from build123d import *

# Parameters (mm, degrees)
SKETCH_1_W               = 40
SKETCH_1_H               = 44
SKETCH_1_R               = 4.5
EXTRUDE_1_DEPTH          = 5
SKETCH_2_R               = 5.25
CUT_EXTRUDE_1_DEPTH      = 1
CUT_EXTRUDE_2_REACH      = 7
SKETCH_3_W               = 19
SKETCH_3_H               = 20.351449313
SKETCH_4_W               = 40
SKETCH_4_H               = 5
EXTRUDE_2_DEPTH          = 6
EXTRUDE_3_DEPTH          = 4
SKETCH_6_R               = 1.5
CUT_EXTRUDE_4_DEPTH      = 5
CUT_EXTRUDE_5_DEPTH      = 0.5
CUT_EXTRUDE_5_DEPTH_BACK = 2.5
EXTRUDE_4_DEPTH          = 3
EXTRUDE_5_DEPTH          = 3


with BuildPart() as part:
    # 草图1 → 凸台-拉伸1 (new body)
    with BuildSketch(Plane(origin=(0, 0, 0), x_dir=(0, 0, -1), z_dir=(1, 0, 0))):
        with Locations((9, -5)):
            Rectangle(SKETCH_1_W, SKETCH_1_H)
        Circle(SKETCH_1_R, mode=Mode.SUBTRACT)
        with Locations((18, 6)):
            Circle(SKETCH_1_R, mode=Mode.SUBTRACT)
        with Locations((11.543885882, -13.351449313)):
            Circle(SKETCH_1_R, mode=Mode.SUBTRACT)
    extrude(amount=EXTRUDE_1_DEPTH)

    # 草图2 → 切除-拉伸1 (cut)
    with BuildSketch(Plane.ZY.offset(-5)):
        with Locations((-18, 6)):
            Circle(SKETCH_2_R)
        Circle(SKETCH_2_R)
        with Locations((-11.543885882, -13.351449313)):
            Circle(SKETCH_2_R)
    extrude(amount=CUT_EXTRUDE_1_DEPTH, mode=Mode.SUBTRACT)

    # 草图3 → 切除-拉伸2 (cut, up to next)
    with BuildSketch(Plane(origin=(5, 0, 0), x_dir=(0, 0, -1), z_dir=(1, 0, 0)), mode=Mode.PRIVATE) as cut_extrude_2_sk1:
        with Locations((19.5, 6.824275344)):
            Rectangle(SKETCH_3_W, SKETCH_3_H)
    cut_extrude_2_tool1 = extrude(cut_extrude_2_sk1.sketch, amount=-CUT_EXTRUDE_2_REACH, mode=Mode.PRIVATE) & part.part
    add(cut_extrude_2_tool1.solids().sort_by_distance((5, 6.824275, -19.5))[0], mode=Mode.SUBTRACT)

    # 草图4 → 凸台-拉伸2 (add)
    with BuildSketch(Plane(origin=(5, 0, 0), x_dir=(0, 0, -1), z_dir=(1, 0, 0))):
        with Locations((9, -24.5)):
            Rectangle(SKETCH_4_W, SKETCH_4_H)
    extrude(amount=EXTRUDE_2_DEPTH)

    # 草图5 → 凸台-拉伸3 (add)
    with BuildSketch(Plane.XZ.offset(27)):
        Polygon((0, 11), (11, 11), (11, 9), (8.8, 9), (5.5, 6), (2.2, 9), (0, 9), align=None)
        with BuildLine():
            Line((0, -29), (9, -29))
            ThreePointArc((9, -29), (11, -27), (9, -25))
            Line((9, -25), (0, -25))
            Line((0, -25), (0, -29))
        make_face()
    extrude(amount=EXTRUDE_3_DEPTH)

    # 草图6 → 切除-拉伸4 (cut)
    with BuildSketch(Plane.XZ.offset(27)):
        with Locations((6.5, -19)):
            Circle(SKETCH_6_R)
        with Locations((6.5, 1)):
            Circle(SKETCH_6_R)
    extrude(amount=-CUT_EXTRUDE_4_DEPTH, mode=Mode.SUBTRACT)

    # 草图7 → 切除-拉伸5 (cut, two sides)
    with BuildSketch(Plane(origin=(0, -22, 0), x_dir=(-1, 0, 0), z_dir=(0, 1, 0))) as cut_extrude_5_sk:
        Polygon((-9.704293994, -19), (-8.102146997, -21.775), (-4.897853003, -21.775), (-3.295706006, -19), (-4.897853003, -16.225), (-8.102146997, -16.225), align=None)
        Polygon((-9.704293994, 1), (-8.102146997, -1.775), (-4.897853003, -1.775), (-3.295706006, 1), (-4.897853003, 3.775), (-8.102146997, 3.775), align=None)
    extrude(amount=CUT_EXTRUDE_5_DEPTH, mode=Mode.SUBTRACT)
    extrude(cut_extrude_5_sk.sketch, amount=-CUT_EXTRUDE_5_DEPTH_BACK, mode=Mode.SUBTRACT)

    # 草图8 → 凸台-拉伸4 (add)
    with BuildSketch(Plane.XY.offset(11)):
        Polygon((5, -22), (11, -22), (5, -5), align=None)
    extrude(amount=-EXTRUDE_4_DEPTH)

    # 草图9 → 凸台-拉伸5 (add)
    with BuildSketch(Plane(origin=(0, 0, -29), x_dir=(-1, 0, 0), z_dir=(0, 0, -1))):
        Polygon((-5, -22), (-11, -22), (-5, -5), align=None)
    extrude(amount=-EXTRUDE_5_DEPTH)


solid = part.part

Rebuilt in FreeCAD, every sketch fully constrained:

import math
import FreeCAD as App
import Part
import Sketcher
Q = App.Units.Quantity

doc = App.newDocument("Part")
body = doc.addObject("PartDesign::Body", "Body")

# Sketch on YZ plane
sketch1 = doc.addObject("Sketcher::SketchObject", "Sketch")
body.addObject(sketch1)
sketch1.AttachmentSupport = (doc.YZ_Plane, [""])
sketch1.MapMode = "FlatFace"
sketch1.addGeometry([
    Part.LineSegment(App.Vector(17, 11, 0), App.Vector(-27, 11, 0)),  # 0
    Part.LineSegment(App.Vector(-27, 11, 0), App.Vector(-27, -29, 0)),  # 1
    Part.LineSegment(App.Vector(-27, -29, 0), App.Vector(17, -29, 0)),  # 2
    Part.LineSegment(App.Vector(17, -29, 0), App.Vector(17, 11, 0)),  # 3
    Part.Circle(App.Vector(-13.4, -11.5, 0), App.Vector(0, 0, 1), 4.5),  # 4
    Part.Circle(App.Vector(0, 0, 0), App.Vector(0, 0, 1), 4.5),  # 5
    Part.Circle(App.Vector(6, -18, 0), App.Vector(0, 0, 1), 4.5),  # 6
], False)
sketch1.addConstraint([
    Sketcher.Constraint("Coincident", 0, 2, 1, 1),
    Sketcher.Constraint("Coincident", 1, 2, 2, 1),
    Sketcher.Constraint("Coincident", 2, 2, 3, 1),
    Sketcher.Constraint("Coincident", 3, 2, 0, 1),
    Sketcher.Constraint("Horizontal", 0),
    Sketcher.Constraint("Vertical", 1),
    Sketcher.Constraint("Horizontal", 2),
    Sketcher.Constraint("Vertical", 3),
    Sketcher.Constraint("Coincident", 5, 3, -1, 1),
    Sketcher.Constraint("Equal", 4, 5),
    Sketcher.Constraint("Equal", 5, 6),
    Sketcher.Constraint("Diameter", 4, Q("9 mm")),
    Sketcher.Constraint("DistanceX", 0, 2, 0, 1, Q("44 mm")),
    Sketcher.Constraint("DistanceY", 1, 2, 1, 1, Q("40 mm")),
    Sketcher.Constraint("DistanceX", -1, 1, 6, 3, Q("6 mm")),
    Sketcher.Constraint("DistanceY", 6, 3, -1, 1, Q("18 mm")),
    Sketcher.Constraint("DistanceX", 0, 2, -1, 1, Q("27 mm")),
    Sketcher.Constraint("DistanceY", -1, 1, 0, 2, Q("11 mm")),
    Sketcher.Constraint("DistanceX", 4, 3, -1, 1, Q("13.351449 mm")),
    Sketcher.Constraint("DistanceY", 4, 3, -1, 1, Q("11.543886 mm")),
])
pad1 = doc.addObject("PartDesign::Pad", "Pad")
body.addObject(pad1)
pad1.Profile = sketch1
pad1.Length = 5

# Sketch on YZ plane
sketch2 = doc.addObject("Sketcher::SketchObject", "Sketch001")
body.addObject(sketch2)
sketch2.AttachmentSupport = (doc.YZ_Plane, [""])
sketch2.MapMode = "FlatFace"
sketch2.AttachmentOffset = App.Placement(App.Vector(0, 0, 5), App.Rotation())
sketch2.addGeometry([
    Part.Circle(App.Vector(6, -18, 0), App.Vector(0, 0, 1), 5),
    Part.Circle(App.Vector(0, 0, 0), App.Vector(0, 0, 1), 5),
    Part.Circle(App.Vector(-13, -12, 0), App.Vector(0, 0, 1), 5),
], False)
sketch2.addConstraint([
    Sketcher.Constraint("Coincident", 1, 3, -1, 1),
    Sketcher.Constraint("Equal", 0, 1),
    Sketcher.Constraint("Equal", 1, 2),
    Sketcher.Constraint("Diameter", 0, Q("10.5 mm")),
    Sketcher.Constraint("DistanceX", -1, 1, 0, 3, Q("6 mm")),
    Sketcher.Constraint("DistanceY", 0, 3, -1, 1, Q("18 mm")),
    Sketcher.Constraint("DistanceX", 2, 3, -1, 1, Q("13.351449 mm")),
    Sketcher.Constraint("DistanceY", 2, 3, -1, 1, Q("11.543886 mm")),
])
pocket1 = doc.addObject("PartDesign::Pocket", "Pocket")
body.addObject(pocket1)
pocket1.Profile = sketch2
pocket1.Length = 1

# Sketch on YZ plane
sketch3 = doc.addObject("Sketcher::SketchObject", "Sketch002")
body.addObject(sketch3)
sketch3.AttachmentSupport = (doc.YZ_Plane, [""])
sketch3.MapMode = "FlatFace"
sketch3.AttachmentOffset = App.Placement(App.Vector(0, 0, 5), App.Rotation())
sketch3.addGeometry([
    Part.LineSegment(App.Vector(17, -10, 0), App.Vector(-3, -10, 0)),
    Part.LineSegment(App.Vector(-3, -10, 0), App.Vector(-3, -29, 0)),
    Part.LineSegment(App.Vector(-3, -29, 0), App.Vector(17, -29, 0)),
    Part.LineSegment(App.Vector(17, -29, 0), App.Vector(17, -10, 0)),
], False)
sketch3.addConstraint([
    Sketcher.Constraint("Coincident", 0, 2, 1, 1),
    Sketcher.Constraint("Coincident", 1, 2, 2, 1),
    Sketcher.Constraint("Coincident", 2, 2, 3, 1),
    Sketcher.Constraint("Coincident", 3, 2, 0, 1),
    Sketcher.Constraint("Horizontal", 0),
    Sketcher.Constraint("Vertical", 1),
    Sketcher.Constraint("Horizontal", 2),
    Sketcher.Constraint("Vertical", 3),
    Sketcher.Constraint("DistanceY", 1, 2, 1, 1, Q("19 mm")),
    Sketcher.Constraint("DistanceY", 0, 2, -1, 1, Q("10 mm")),
    Sketcher.Constraint("DistanceX", -1, 1, 2, 2, Q("17 mm")),
    Sketcher.Constraint("DistanceX", 0, 2, 0, 1, Q("20.351449 mm")),
])
pocket2 = doc.addObject("PartDesign::Pocket", "Pocket001")
body.addObject(pocket2)
pocket2.Profile = sketch3
pocket2.Length = 5

# Sketch on YZ plane
sketch4 = doc.addObject("Sketcher::SketchObject", "Sketch003")
body.addObject(sketch4)
sketch4.AttachmentSupport = (doc.YZ_Plane, [""])
sketch4.MapMode = "FlatFace"
sketch4.AttachmentOffset = App.Placement(App.Vector(0, 0, 5), App.Rotation())
sketch4.addGeometry([
    Part.LineSegment(App.Vector(-22, 11, 0), App.Vector(-27, 11, 0)),
    Part.LineSegment(App.Vector(-27, 11, 0), App.Vector(-27, -29, 0)),
    Part.LineSegment(App.Vector(-27, -29, 0), App.Vector(-22, -29, 0)),
    Part.LineSegment(App.Vector(-22, -29, 0), App.Vector(-22, 11, 0)),
], False)
sketch4.addConstraint([
    Sketcher.Constraint("Coincident", 0, 2, 1, 1),
    Sketcher.Constraint("Coincident", 1, 2, 2, 1),
    Sketcher.Constraint("Coincident", 2, 2, 3, 1),
    Sketcher.Constraint("Coincident", 3, 2, 0, 1),
    Sketcher.Constraint("Horizontal", 0),
    Sketcher.Constraint("Vertical", 1),
    Sketcher.Constraint("Horizontal", 2),
    Sketcher.Constraint("Vertical", 3),
    Sketcher.Constraint("DistanceX", 0, 2, 0, 1, Q("5 mm")),
    Sketcher.Constraint("DistanceY", 1, 2, 1, 1, Q("40 mm")),
    Sketcher.Constraint("DistanceX", 0, 2, -1, 1, Q("27 mm")),
    Sketcher.Constraint("DistanceY", -1, 1, 0, 2, Q("11 mm")),
])
pad2 = doc.addObject("PartDesign::Pad", "Pad001")
body.addObject(pad2)
pad2.Profile = sketch4
pad2.Length = 6

# Sketch on XZ plane
sketch5 = doc.addObject("Sketcher::SketchObject", "Sketch004")
body.addObject(sketch5)
sketch5.AttachmentSupport = (doc.XZ_Plane, [""])
sketch5.MapMode = "FlatFace"
sketch5.AttachmentOffset = App.Placement(App.Vector(0, 0, 27), App.Rotation())
sketch5.addGeometry([
    Part.LineSegment(App.Vector(11, 11, 0), App.Vector(0, 11, 0)),  # 0
    Part.LineSegment(App.Vector(0, 11, 0), App.Vector(0, 9, 0)),  # 1
    Part.LineSegment(App.Vector(0, 9, 0), App.Vector(2.2, 9, 0)),  # 2
    Part.LineSegment(App.Vector(2.2, 9, 0), App.Vector(5.5, 6, 0)),  # 3
    Part.LineSegment(App.Vector(5.5, 6, 0), App.Vector(8.8, 9, 0)),  # 4
    Part.LineSegment(App.Vector(8.8, 9, 0), App.Vector(11, 9, 0)),  # 5
    Part.LineSegment(App.Vector(11, 9, 0), App.Vector(11, 11, 0)),  # 6
    Part.LineSegment(App.Vector(0, -29, 0), App.Vector(9, -29, 0)),  # 7
    Part.ArcOfCircle(Part.Circle(App.Vector(9, -27, 0), App.Vector(0, 0, 1), 2), math.radians(-90), math.radians(90)),  # 8
    Part.LineSegment(App.Vector(9, -25, 0), App.Vector(0, -25, 0)),  # 9
    Part.LineSegment(App.Vector(0, -25, 0), App.Vector(0, -29, 0)),  # 10
], False)
sketch5.addConstraint([
    Sketcher.Constraint("Coincident", 0, 2, 1, 1),
    Sketcher.Constraint("Coincident", 1, 2, 2, 1),
    Sketcher.Constraint("Coincident", 2, 2, 3, 1),
    Sketcher.Constraint("Coincident", 3, 2, 4, 1),
    Sketcher.Constraint("Coincident", 4, 2, 5, 1),
    Sketcher.Constraint("Coincident", 5, 2, 6, 1),
    Sketcher.Constraint("Coincident", 6, 2, 0, 1),
    Sketcher.Constraint("Tangent", 7, 2, 8, 1),
    Sketcher.Constraint("Tangent", 8, 2, 9, 1),
    Sketcher.Constraint("Coincident", 9, 2, 10, 1),
    Sketcher.Constraint("Coincident", 10, 2, 7, 1),
    Sketcher.Constraint("Horizontal", 0),
    Sketcher.Constraint("Vertical", 1),
    Sketcher.Constraint("Horizontal", 2),
    Sketcher.Constraint("Horizontal", 5),
    Sketcher.Constraint("Vertical", 6),
    Sketcher.Constraint("Horizontal", 7),
    Sketcher.Constraint("Horizontal", 9),
    Sketcher.Constraint("Vertical", 10),
    Sketcher.Constraint("PointOnObject", 0, 2, -2),
    Sketcher.Constraint("PointOnObject", 9, 2, -2),
    Sketcher.Constraint("Horizontal", 2, 2, 4, 2),
    Sketcher.Constraint("Equal", 2, 5),
    Sketcher.Constraint("Equal", 3, 4),
    Sketcher.Constraint("Radius", 8, Q("2 mm")),
    Sketcher.Constraint("DistanceX", 0, 2, 0, 1, Q("11 mm")),
    Sketcher.Constraint("DistanceX", 7, 1, 7, 2, Q("9 mm")),
    Sketcher.Constraint("DistanceY", 1, 2, 1, 1, Q("2 mm")),
    Sketcher.Constraint("DistanceX", 2, 1, 2, 2, Q("2.2 mm")),
    Sketcher.Constraint("DistanceY", 8, 3, -1, 1, Q("27 mm")),
    Sketcher.Constraint("DistanceY", -1, 1, 0, 2, Q("11 mm")),
    Sketcher.Constraint("DistanceY", -1, 1, 3, 2, Q("6 mm")),
])
pad3 = doc.addObject("PartDesign::Pad", "Pad002")
body.addObject(pad3)
pad3.Profile = sketch5
pad3.Length = 4

# Sketch on XZ plane
sketch6 = doc.addObject("Sketcher::SketchObject", "Sketch005")
body.addObject(sketch6)
sketch6.AttachmentSupport = (doc.XZ_Plane, [""])
sketch6.MapMode = "FlatFace"
sketch6.AttachmentOffset = App.Placement(App.Vector(0, 0, 27), App.Rotation())
sketch6.addGeometry([
    Part.Circle(App.Vector(6.5, -19, 0), App.Vector(0, 0, 1), 1.5),
    Part.Circle(App.Vector(6.5, 1, 0), App.Vector(0, 0, 1), 1.5),
], False)
sketch6.addConstraint([
    Sketcher.Constraint("Equal", 0, 1),
    Sketcher.Constraint("Vertical", 0, 3, 1, 3),
    Sketcher.Constraint("Diameter", 0, Q("3 mm")),
    Sketcher.Constraint("DistanceY", 0, 3, -1, 1, Q("19 mm")),
    Sketcher.Constraint("DistanceY", -1, 1, 1, 3, Q("1 mm")),
    Sketcher.Constraint("DistanceX", -1, 1, 0, 3, Q("6.5 mm")),
])
pocket3 = doc.addObject("PartDesign::Pocket", "Pocket002")
body.addObject(pocket3)
pocket3.Profile = sketch6
pocket3.Length = 5

# Sketch on XZ plane
sketch7 = doc.addObject("Sketcher::SketchObject", "Sketch006")
body.addObject(sketch7)
sketch7.AttachmentSupport = (doc.XZ_Plane, [""])
sketch7.MapMode = "FlatFace"
sketch7.AttachmentOffset = App.Placement(App.Vector(0, 0, 22), App.Rotation())
sketch7.addGeometry([
    Part.LineSegment(App.Vector(9.7, -19, 0), App.Vector(8.1, -21.8, 0)),  # 0
    Part.LineSegment(App.Vector(8.1, -21.8, 0), App.Vector(4.9, -21.8, 0)),  # 1
    Part.LineSegment(App.Vector(4.9, -21.8, 0), App.Vector(3.3, -19, 0)),  # 2
    Part.LineSegment(App.Vector(3.3, -19, 0), App.Vector(4.9, -16.2, 0)),  # 3
    Part.LineSegment(App.Vector(4.9, -16.2, 0), App.Vector(8.1, -16.2, 0)),  # 4
    Part.LineSegment(App.Vector(8.1, -16.2, 0), App.Vector(9.7, -19, 0)),  # 5
    Part.LineSegment(App.Vector(9.7, 1, 0), App.Vector(8.1, -1.8, 0)),  # 6
    Part.LineSegment(App.Vector(8.1, -1.8, 0), App.Vector(4.9, -1.8, 0)),  # 7
    Part.LineSegment(App.Vector(4.9, -1.8, 0), App.Vector(3.3, 1, 0)),  # 8
    Part.LineSegment(App.Vector(3.3, 1, 0), App.Vector(4.9, 3.8, 0)),  # 9
    Part.LineSegment(App.Vector(4.9, 3.8, 0), App.Vector(8.1, 3.8, 0)),  # 10
    Part.LineSegment(App.Vector(8.1, 3.8, 0), App.Vector(9.7, 1, 0)),  # 11
], False)
sketch7.addConstraint([
    Sketcher.Constraint("Coincident", 0, 2, 1, 1),
    Sketcher.Constraint("Coincident", 1, 2, 2, 1),
    Sketcher.Constraint("Coincident", 2, 2, 3, 1),
    Sketcher.Constraint("Coincident", 3, 2, 4, 1),
    Sketcher.Constraint("Coincident", 4, 2, 5, 1),
    Sketcher.Constraint("Coincident", 5, 2, 0, 1),
    Sketcher.Constraint("Coincident", 6, 2, 7, 1),
    Sketcher.Constraint("Coincident", 7, 2, 8, 1),
    Sketcher.Constraint("Coincident", 8, 2, 9, 1),
    Sketcher.Constraint("Coincident", 9, 2, 10, 1),
    Sketcher.Constraint("Coincident", 10, 2, 11, 1),
    Sketcher.Constraint("Coincident", 11, 2, 6, 1),
    Sketcher.Constraint("Horizontal", 1),
    Sketcher.Constraint("Horizontal", 4),
    Sketcher.Constraint("Horizontal", 7),
    Sketcher.Constraint("Horizontal", 10),
    Sketcher.Constraint("Parallel", 0, 3),
    Sketcher.Constraint("Parallel", 2, 5),
    Sketcher.Constraint("Parallel", 3, 6),
    Sketcher.Constraint("Parallel", 5, 8),
    Sketcher.Constraint("Parallel", 6, 9),
    Sketcher.Constraint("Parallel", 8, 11),
    Sketcher.Constraint("Horizontal", 2, 2, 5, 2),
    Sketcher.Constraint("Horizontal", 8, 2, 11, 2),
    Sketcher.Constraint("Vertical", 1, 2, 3, 2),
    Sketcher.Constraint("Vertical", 0, 2, 4, 2),
    Sketcher.Constraint("Vertical", 4, 2, 6, 2),
    Sketcher.Constraint("Vertical", 3, 2, 7, 2),
    Sketcher.Constraint("Vertical", 2, 2, 8, 2),
    Sketcher.Constraint("Vertical", 7, 2, 9, 2),
    Sketcher.Constraint("Angle", 0, Q("-120 deg")),
    Sketcher.Constraint("DistanceY", 2, 2, -1, 1, Q("19 mm")),
    Sketcher.Constraint("DistanceY", -1, 1, 8, 2, Q("1 mm")),
    Sketcher.Constraint("DistanceY", 1, 2, 3, 2, Q("5.55 mm")),
    Sketcher.Constraint("DistanceX", 1, 2, 1, 1, Q("3.204294 mm")),
    Sketcher.Constraint("DistanceX", -1, 1, 0, 2, Q("8.102147 mm")),
])
pocket4 = doc.addObject("PartDesign::Pocket", "Pocket003")
body.addObject(pocket4)
pocket4.Profile = sketch7
pocket4.Type = "TwoLengths"
pocket4.Length = 0.5
pocket4.Length2 = 2.5

# Sketch on XY plane
sketch8 = doc.addObject("Sketcher::SketchObject", "Sketch007")
body.addObject(sketch8)
sketch8.AttachmentSupport = (doc.XY_Plane, [""])
sketch8.MapMode = "FlatFace"
sketch8.AttachmentOffset = App.Placement(App.Vector(0, 0, 11), App.Rotation())
sketch8.addGeometry([
    Part.LineSegment(App.Vector(5, -22, 0), App.Vector(11, -22, 0)),
    Part.LineSegment(App.Vector(11, -22, 0), App.Vector(5, -5, 0)),
    Part.LineSegment(App.Vector(5, -5, 0), App.Vector(5, -22, 0)),
], False)
sketch8.addConstraint([
    Sketcher.Constraint("Coincident", 0, 2, 1, 1),
    Sketcher.Constraint("Coincident", 1, 2, 2, 1),
    Sketcher.Constraint("Coincident", 2, 2, 0, 1),
    Sketcher.Constraint("Horizontal", 0),
    Sketcher.Constraint("Vertical", 2),
    Sketcher.Constraint("DistanceX", 0, 1, 0, 2, Q("6 mm")),
    Sketcher.Constraint("DistanceY", 2, 2, 2, 1, Q("17 mm")),
    Sketcher.Constraint("DistanceX", -1, 1, 0, 2, Q("11 mm")),
    Sketcher.Constraint("DistanceY", 0, 2, -1, 1, Q("22 mm")),
])
pad4 = doc.addObject("PartDesign::Pad", "Pad003")
body.addObject(pad4)
pad4.Profile = sketch8
pad4.Length = 3
pad4.Reversed = True

# Sketch on XY plane
sketch9 = doc.addObject("Sketcher::SketchObject", "Sketch008")
body.addObject(sketch9)
sketch9.AttachmentSupport = (doc.XY_Plane, [""])
sketch9.MapMode = "FlatFace"
sketch9.AttachmentOffset = App.Placement(App.Vector(0, 0, -29), App.Rotation())
sketch9.addGeometry([
    Part.LineSegment(App.Vector(11, -22, 0), App.Vector(5, -22, 0)),
    Part.LineSegment(App.Vector(5, -22, 0), App.Vector(5, -5, 0)),
    Part.LineSegment(App.Vector(5, -5, 0), App.Vector(11, -22, 0)),
], False)
sketch9.addConstraint([
    Sketcher.Constraint("Coincident", 0, 2, 1, 1),
    Sketcher.Constraint("Coincident", 1, 2, 2, 1),
    Sketcher.Constraint("Coincident", 2, 2, 0, 1),
    Sketcher.Constraint("Horizontal", 0),
    Sketcher.Constraint("Vertical", 1),
    Sketcher.Constraint("DistanceX", 0, 2, 0, 1, Q("6 mm")),
    Sketcher.Constraint("DistanceY", 1, 1, 1, 2, Q("17 mm")),
    Sketcher.Constraint("DistanceX", -1, 1, 0, 2, Q("5 mm")),
    Sketcher.Constraint("DistanceY", 0, 2, -1, 1, Q("22 mm")),
])
pad5 = doc.addObject("PartDesign::Pad", "Pad004")
body.addObject(pad5)
pad5.Profile = sketch9
pad5.Length = 3

doc.recompute()
